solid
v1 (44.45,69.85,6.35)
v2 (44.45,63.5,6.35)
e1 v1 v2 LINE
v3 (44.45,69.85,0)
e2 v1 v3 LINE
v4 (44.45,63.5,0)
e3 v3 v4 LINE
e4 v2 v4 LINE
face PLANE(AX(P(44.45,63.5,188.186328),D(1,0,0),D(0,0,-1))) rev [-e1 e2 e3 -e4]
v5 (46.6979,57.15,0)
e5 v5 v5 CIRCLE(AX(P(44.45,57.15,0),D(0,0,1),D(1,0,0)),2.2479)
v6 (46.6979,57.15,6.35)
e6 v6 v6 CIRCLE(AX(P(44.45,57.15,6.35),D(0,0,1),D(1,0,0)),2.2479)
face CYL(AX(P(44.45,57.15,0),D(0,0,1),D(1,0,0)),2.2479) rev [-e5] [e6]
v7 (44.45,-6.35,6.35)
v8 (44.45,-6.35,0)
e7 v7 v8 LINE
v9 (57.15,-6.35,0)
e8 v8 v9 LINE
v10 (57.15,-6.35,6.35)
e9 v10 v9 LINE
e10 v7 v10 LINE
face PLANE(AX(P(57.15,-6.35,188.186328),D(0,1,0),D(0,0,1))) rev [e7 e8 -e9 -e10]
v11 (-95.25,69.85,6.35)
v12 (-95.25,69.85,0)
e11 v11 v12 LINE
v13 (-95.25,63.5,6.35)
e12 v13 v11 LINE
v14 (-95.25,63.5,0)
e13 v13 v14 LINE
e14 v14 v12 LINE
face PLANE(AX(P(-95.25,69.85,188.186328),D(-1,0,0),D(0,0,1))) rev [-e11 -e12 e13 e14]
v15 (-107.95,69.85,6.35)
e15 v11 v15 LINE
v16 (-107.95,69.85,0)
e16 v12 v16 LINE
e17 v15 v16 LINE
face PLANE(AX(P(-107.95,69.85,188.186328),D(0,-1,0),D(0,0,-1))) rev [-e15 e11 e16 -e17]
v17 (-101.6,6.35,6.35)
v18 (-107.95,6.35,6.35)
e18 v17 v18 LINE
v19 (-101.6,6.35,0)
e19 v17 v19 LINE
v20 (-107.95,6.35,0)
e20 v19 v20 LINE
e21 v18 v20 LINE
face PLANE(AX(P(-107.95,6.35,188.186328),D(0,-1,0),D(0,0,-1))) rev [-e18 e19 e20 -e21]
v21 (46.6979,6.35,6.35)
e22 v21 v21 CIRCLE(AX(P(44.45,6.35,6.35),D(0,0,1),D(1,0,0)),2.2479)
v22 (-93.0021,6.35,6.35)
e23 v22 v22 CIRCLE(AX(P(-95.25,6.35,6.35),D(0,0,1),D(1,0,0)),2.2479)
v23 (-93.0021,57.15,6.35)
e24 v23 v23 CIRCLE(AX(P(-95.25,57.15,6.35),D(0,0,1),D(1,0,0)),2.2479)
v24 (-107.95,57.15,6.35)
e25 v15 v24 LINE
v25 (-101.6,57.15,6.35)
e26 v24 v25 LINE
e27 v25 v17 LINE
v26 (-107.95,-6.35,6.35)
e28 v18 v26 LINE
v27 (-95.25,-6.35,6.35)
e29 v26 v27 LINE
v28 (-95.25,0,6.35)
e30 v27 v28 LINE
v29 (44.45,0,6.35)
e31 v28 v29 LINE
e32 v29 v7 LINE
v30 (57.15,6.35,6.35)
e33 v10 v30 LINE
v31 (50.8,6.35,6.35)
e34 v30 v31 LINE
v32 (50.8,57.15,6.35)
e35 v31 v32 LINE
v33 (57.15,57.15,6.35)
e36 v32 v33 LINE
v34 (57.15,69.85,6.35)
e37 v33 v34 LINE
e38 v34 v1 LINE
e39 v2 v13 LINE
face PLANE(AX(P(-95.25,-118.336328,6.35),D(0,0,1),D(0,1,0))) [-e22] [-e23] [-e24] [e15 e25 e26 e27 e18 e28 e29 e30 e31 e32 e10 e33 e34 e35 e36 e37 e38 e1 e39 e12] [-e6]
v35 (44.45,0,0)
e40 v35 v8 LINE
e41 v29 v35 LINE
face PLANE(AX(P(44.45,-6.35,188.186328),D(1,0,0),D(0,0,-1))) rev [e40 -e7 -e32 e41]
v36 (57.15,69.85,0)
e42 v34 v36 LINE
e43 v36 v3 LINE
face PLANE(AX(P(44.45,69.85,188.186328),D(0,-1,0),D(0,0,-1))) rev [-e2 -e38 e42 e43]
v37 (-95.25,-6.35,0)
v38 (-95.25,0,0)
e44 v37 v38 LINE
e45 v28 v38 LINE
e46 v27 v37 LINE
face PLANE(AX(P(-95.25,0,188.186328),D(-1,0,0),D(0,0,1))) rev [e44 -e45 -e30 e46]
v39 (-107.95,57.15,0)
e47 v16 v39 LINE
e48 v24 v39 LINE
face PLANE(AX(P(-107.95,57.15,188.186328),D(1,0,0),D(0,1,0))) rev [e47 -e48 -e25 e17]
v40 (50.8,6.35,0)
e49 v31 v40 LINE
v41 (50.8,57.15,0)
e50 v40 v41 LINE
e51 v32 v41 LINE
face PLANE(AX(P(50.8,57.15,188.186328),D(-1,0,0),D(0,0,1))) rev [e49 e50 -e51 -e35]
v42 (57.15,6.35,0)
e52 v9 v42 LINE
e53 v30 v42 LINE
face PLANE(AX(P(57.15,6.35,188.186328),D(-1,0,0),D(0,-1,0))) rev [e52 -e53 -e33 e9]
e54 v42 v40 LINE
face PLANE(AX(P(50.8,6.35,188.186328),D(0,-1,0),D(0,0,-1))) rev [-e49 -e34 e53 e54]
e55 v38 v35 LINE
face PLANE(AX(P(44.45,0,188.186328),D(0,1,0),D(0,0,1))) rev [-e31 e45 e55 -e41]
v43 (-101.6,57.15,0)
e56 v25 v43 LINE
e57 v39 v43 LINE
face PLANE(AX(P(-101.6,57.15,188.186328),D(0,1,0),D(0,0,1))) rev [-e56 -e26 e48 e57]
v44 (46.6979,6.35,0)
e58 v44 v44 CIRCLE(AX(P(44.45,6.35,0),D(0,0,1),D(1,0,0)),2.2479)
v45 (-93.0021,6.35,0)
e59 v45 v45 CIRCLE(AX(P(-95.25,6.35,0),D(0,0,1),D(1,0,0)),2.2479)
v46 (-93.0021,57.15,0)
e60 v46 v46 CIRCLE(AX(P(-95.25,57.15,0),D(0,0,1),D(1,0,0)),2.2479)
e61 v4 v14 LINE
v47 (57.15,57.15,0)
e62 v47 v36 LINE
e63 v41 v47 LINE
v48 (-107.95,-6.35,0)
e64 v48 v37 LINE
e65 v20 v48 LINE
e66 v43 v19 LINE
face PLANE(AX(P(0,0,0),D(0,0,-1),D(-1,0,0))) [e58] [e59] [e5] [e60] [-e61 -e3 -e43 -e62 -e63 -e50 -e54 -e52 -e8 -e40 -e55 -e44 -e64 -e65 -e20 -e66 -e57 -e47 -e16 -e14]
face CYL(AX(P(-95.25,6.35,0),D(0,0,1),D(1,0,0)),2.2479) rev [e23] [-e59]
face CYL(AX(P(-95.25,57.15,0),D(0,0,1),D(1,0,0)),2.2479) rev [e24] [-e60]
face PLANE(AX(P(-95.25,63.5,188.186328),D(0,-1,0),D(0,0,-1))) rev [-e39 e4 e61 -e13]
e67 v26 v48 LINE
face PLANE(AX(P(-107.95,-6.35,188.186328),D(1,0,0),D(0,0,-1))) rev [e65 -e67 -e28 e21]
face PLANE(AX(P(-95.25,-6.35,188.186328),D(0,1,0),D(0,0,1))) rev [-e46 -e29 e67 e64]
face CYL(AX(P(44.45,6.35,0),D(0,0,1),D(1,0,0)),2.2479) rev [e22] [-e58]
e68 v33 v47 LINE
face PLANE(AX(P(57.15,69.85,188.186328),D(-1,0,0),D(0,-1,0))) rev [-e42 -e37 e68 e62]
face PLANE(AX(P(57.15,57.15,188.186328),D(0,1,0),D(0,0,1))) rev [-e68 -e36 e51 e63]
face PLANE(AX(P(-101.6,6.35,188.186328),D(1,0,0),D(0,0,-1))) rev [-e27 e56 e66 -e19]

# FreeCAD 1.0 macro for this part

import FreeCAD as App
import Part
import Sketcher

V = App.Vector
Q = App.Units.Quantity


def add_polygon(sketch, points):
    """Adds a closed chain of lines whose ends are joined by coincident constraints."""
    first, n = sketch.GeometryCount, len(points)
    for a, b in zip(points, points[1:] + points[:1]):
        sketch.addGeometry(Part.LineSegment(App.Vector(*a, 0), App.Vector(*b, 0)), False)
    for i in range(n):
        sketch.addConstraint(Sketcher.Constraint("Coincident", first + i, 2, first + (i + 1) % n, 1))

doc = App.newDocument("Part")
body = doc.addObject("PartDesign::Body", "Body")

# Sketch on XY plane
sketch1 = doc.addObject("Sketcher::SketchObject", "Sketch")
body.addObject(sketch1)
sketch1.AttachmentSupport = (doc.XY_Plane, [""])
sketch1.MapMode = "FlatFace"
add_polygon(sketch1, [(-108, 6), (-108, -6), (-95, -6), (-95, 0), (44, 0), (44, -6), (57, -6), (57, 6), (51, 6), (51, 57), (57, 57), (57, 70), (44, 70), (44, 64), (-95, 64), (-95, 70), (-108, 70), (-108, 57), (-102, 57), (-102, 6)])  # lines 0-19
sketch1.addConstraint([
    Sketcher.Constraint("Vertical", 0),
    Sketcher.Constraint("Horizontal", 1),
    Sketcher.Constraint("Vertical", 2),
    Sketcher.Constraint("Horizontal", 3),
    Sketcher.Constraint("Vertical", 4),
    Sketcher.Constraint("Horizontal", 5),
    Sketcher.Constraint("Vertical", 6),
    Sketcher.Constraint("Horizontal", 7),
    Sketcher.Constraint("Vertical", 8),
    Sketcher.Constraint("Horizontal", 9),
    Sketcher.Constraint("Vertical", 10),
    Sketcher.Constraint("Horizontal", 11),
    Sketcher.Constraint("Vertical", 12),
    Sketcher.Constraint("Horizontal", 13),
    Sketcher.Constraint("Vertical", 14),
    Sketcher.Constraint("Horizontal", 15),
    Sketcher.Constraint("Vertical", 16),
    Sketcher.Constraint("Horizontal", 17),
    Sketcher.Constraint("Vertical", 18),
    Sketcher.Constraint("Horizontal", 19),
    Sketcher.Constraint("PointOnObject", 2, 2, -1),
    Sketcher.Constraint("Horizontal", 1, 2, 4, 2),
    Sketcher.Constraint("Horizontal", 11, 2, 14, 2),
    Sketcher.Constraint("Horizontal", 9, 2, 16, 2),
    Sketcher.Constraint("Horizontal", 7, 2, 18, 2),
    Sketcher.Constraint("Vertical", 6, 2, 9, 2),
    Sketcher.Constraint("Vertical", 4, 2, 11, 2),
    Sketcher.Constraint("Vertical", 2, 2, 13, 2),
    Sketcher.Constraint("Vertical", 0, 2, 15, 2),
    Sketcher.Constraint("Equal", 1, 5),
    Sketcher.Constraint("Equal", 9, 17),
    Sketcher.Constraint("Equal", 15, 0),
    Sketcher.Constraint("Equal", 19, 2),
    Sketcher.Constraint("Equal", 6, 10),
    Sketcher.Constraint("Equal", 4, 12),
    Sketcher.Constraint("DistanceY", 8, 1, 8, 2, Q("2 in")),
    Sketcher.Constraint("DistanceX", 1, 1, 1, 2, Q("0.5 in")),
    Sketcher.Constraint("DistanceX", 3, 1, 3, 2, Q("5.5 in")),
    Sketcher.Constraint("DistanceX", -1, 1, 7, 2, Q("2 in")),
    Sketcher.Constraint("DistanceX", 17, 2, -1, 1, Q("4 in")),
])
pad1 = doc.addObject("PartDesign::Pad", "Pad")
body.addObject(pad1)
pad1.Profile = sketch1
pad1.Length = Q("0.25 in")

# Sketch on XY plane
sketch2 = doc.addObject("Sketcher::SketchObject", "Sketch001")
body.addObject(sketch2)
sketch2.AttachmentSupport = (doc.XY_Plane, [""])
sketch2.MapMode = "FlatFace"
sketch2.AttachmentOffset = App.Placement(V(0, 0, 0.25 * 25.4), App.Rotation())
sketch2.addGeometry([
    Part.Circle(V(44.5, 6.3, 0), V(0, 0, 1), 2.2),
    Part.Circle(V(44.5, 57.1, 0), V(0, 0, 1), 2.2),
    Part.Circle(V(-95.2, 57.1, 0), V(0, 0, 1), 2.2),
    Part.Circle(V(-95.2, 6.3, 0), V(0, 0, 1), 2.2),
], False)
sketch2.addConstraint([
    Sketcher.Constraint("Equal", 0, 1),
    Sketcher.Constraint("Equal", 1, 2),
    Sketcher.Constraint("Equal", 2, 3),
    Sketcher.Constraint("Horizontal", 1, 3, 2, 3),
    Sketcher.Constraint("Horizontal", 0, 3, 3, 3),
    Sketcher.Constraint("Vertical", 0, 3, 1, 3),
    Sketcher.Constraint("Vertical", 2, 3, 3, 3),
    Sketcher.Constraint("Diameter", 0, Q("0.177 in")),
    Sketcher.Constraint("DistanceY", 0, 3, 1, 3, Q("2 in")),
    Sketcher.Constraint("DistanceX", 2, 3, 1, 3, Q("5.5 in")),
    Sketcher.Constraint("DistanceX", -1, 1, 0, 3, Q("1.75 in")),
    Sketcher.Constraint("DistanceY", -1, 1, 0, 3, Q("0.25 in")),
])
pocket1 = doc.addObject("PartDesign::Pocket", "Pocket")
body.addObject(pocket1)
pocket1.Profile = sketch2
pocket1.Type = "ThroughAll"

doc.recompute()
